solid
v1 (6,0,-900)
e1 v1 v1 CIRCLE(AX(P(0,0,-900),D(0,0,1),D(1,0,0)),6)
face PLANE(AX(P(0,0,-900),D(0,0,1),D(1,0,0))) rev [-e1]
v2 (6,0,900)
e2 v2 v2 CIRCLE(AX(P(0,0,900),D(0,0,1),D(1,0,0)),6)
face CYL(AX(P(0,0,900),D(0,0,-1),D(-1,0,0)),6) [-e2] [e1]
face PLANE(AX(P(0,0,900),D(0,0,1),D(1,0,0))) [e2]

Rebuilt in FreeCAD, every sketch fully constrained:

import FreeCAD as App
import Part
import Sketcher
from FreeCAD import Vector
Q = App.Units.Quantity

doc = App.newDocument("Part")
body = doc.addObject("PartDesign::Body", "Body")

sketch1 = doc.addObject("Sketcher::SketchObject", "Sketch")
body.addObject(sketch1)
sketch1.AttachmentSupport = (doc.XY_Plane, [""])
sketch1.MapMode = "FlatFace"
sketch1.addGeometry(Part.Circle(Vector(0, 0, 0), Vector(0, 0, 1), 6), False)
sketch1.addConstraint(Sketcher.Constraint("Coincident", 0, 3, -1, 1))
sketch1.addConstraint(Sketcher.Constraint("Diameter", 0, Q("12 mm")))
pad1 = doc.addObject("PartDesign::Pad", "Pad")
body.addObject(pad1)
pad1.Profile = sketch1
pad1.Length = 1800
pad1.Midplane = True

doc.recompute()
